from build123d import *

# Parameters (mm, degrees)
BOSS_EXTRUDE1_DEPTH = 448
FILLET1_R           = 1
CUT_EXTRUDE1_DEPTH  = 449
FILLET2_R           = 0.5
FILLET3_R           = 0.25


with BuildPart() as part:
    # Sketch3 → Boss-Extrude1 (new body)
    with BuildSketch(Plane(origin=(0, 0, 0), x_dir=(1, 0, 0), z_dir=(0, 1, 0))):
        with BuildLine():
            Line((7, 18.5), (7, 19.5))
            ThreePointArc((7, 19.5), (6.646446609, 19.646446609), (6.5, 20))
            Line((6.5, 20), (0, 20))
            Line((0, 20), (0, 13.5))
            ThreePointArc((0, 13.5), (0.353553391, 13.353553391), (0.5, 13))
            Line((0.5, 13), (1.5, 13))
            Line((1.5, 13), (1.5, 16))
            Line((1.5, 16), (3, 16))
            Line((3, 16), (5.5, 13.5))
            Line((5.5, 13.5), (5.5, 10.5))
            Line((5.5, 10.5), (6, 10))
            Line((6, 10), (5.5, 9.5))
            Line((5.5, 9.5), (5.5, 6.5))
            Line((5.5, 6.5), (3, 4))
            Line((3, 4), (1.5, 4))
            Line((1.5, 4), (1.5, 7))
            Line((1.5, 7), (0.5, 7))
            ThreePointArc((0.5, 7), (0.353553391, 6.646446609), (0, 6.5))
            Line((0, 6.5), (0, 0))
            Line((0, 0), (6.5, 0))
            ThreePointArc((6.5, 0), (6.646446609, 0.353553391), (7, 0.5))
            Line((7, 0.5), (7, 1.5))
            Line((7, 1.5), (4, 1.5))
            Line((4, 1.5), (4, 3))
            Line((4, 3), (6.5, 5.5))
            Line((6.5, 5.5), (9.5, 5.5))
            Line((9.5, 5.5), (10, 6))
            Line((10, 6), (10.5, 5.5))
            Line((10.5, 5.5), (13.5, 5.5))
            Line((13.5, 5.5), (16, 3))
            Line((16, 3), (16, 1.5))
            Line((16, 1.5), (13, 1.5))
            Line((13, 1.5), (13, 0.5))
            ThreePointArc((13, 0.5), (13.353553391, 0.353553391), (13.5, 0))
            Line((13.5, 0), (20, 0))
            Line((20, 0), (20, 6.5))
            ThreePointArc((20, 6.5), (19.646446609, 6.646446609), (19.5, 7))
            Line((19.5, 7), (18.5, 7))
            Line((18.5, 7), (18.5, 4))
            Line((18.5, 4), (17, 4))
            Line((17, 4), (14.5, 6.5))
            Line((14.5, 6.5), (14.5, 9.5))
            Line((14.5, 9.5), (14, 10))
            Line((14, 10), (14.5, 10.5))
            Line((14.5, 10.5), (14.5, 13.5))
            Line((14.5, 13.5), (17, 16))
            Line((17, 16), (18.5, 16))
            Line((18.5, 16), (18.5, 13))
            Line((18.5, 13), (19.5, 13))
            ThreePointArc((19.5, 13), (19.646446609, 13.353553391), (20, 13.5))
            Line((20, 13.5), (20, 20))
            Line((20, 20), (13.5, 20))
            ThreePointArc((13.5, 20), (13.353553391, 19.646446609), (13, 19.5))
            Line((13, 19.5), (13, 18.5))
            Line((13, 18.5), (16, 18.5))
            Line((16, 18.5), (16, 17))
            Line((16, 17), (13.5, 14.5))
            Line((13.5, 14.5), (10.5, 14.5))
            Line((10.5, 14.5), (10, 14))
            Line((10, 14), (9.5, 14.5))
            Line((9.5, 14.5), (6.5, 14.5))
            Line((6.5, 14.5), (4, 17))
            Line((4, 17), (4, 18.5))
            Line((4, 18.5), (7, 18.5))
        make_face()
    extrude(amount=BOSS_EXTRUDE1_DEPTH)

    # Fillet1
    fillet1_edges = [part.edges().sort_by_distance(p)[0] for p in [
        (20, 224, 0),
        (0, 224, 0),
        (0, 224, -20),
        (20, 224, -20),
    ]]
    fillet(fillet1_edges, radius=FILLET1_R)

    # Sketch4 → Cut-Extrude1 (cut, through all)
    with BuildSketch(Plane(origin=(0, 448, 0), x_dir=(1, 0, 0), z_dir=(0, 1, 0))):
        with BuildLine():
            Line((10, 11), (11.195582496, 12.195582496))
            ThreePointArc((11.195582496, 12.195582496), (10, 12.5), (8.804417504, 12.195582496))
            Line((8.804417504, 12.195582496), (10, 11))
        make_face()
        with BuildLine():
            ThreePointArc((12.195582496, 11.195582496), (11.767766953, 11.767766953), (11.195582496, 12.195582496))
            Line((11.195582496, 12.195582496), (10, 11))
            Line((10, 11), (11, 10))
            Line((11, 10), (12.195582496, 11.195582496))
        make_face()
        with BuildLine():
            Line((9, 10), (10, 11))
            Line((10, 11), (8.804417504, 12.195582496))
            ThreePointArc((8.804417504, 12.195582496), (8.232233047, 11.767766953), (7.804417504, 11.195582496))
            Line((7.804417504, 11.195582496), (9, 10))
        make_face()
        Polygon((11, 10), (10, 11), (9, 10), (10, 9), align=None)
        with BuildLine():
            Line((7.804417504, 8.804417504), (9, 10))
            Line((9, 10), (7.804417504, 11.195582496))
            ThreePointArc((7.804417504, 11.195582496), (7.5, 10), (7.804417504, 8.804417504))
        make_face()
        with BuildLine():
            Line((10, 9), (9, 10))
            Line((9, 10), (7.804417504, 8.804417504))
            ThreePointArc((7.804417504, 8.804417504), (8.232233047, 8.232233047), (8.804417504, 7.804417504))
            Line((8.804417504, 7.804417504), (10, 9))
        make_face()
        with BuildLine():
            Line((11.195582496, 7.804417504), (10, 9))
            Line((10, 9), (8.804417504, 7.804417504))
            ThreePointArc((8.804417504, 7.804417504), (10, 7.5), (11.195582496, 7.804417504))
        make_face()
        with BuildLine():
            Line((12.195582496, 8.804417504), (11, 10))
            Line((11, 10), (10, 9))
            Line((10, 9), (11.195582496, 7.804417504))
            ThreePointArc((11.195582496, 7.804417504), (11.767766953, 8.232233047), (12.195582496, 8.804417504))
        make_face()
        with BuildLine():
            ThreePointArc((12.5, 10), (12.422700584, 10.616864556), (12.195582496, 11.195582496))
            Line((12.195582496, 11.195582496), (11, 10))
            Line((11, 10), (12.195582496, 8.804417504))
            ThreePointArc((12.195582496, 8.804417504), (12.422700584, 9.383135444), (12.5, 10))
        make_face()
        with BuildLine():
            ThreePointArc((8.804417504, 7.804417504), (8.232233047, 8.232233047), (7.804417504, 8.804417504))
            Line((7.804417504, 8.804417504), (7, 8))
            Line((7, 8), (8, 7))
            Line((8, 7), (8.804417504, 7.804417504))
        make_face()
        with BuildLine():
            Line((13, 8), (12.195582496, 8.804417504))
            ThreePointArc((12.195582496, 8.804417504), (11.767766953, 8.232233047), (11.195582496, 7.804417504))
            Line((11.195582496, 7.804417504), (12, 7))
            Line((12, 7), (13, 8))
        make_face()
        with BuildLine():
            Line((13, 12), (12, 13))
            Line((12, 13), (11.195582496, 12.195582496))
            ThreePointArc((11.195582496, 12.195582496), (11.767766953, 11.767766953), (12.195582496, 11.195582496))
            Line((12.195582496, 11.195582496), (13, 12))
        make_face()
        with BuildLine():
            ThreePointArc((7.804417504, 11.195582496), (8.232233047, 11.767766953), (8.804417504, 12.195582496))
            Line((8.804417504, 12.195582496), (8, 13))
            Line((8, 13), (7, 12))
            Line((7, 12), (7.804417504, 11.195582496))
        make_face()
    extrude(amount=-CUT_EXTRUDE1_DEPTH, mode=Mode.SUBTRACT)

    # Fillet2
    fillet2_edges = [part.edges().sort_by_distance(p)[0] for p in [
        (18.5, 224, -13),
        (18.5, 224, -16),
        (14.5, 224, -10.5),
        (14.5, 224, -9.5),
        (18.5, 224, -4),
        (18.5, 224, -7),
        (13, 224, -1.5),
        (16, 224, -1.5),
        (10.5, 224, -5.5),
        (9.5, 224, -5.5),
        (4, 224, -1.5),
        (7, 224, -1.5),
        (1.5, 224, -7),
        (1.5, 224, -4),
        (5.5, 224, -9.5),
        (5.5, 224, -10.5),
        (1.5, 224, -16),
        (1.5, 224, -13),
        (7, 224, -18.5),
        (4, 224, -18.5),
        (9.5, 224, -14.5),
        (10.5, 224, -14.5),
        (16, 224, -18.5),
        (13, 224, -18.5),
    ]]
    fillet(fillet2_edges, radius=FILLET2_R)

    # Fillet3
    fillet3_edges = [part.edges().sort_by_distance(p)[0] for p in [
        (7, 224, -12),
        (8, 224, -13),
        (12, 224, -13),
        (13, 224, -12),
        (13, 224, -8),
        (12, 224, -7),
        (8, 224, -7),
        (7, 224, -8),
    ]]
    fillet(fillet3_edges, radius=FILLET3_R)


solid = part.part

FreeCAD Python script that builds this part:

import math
import FreeCAD as App
import Part
import Sketcher
from FreeCAD import Vector


def edges_at(feature, points):
    """Names of the edges that pass closest to the given points."""
    edges = feature.Shape.Edges
    near = lambda p: min(range(len(edges)), key=lambda i: edges[i].distToShape(Part.Vertex(*p))[0])
    return sorted({f"Edge{near(p) + 1}" for p in points})

doc = App.newDocument("Part")
params = doc.addObject("Spreadsheet::Sheet", "Params")
for row, (alias, value) in enumerate([
    ("sketch1_radius", "0.5 mm"),
    ("sketch1_width", "1 mm"),
    ("sketch1_width2", "3 mm"),
    ("sketch1_width3", "6.5 mm"),
    ("sketch1_width4", "1.5 mm"),
    ("pad1_length", "448 mm"),
    ("fillet_radius", "1 mm"),
    ("sketch2_radius", "2.5 mm"),
    ("fillet2_radius", "0.5 mm"),
    ("fillet3_radius", "0.25 mm"),
], start=1):
    params.set(f"A{row}", alias)
    params.set(f"B{row}", "=" + value)
    params.setAlias(f"B{row}", alias)

body = doc.addObject("PartDesign::Body", "Body")

sketch1 = body.newObject("Sketcher::SketchObject", "Sketch")
sketch1.AttachmentSupport = (doc.getObject("XZ_Plane"), [""])
sketch1.MapMode = "FlatFace"
sketch1.addGeometry([
    Part.LineSegment(Vector(7, -18.5, 0), Vector(7, -19.5, 0)),
    Part.ArcOfCircle(Part.Circle(Vector(7, -20, 0), Vector(0, 0, 1), 0.5), math.radians(90), math.radians(180)),
    Part.LineSegment(Vector(6.5, -20, 0), Vector(0, -20, 0)),
    Part.LineSegment(Vector(0, -20, 0), Vector(0, -13.5, 0)),
    Part.ArcOfCircle(Part.Circle(Vector(0, -13, 0), Vector(0, 0, 1), 0.5), math.radians(-90), math.radians(0)),
    Part.LineSegment(Vector(0.5, -13, 0), Vector(1.5, -13, 0)),
    Part.LineSegment(Vector(1.5, -13, 0), Vector(1.5, -16, 0)),
    Part.LineSegment(Vector(1.5, -16, 0), Vector(3, -16, 0)),
    Part.LineSegment(Vector(3, -16, 0), Vector(5.5, -13.5, 0)),
    Part.LineSegment(Vector(5.5, -13.5, 0), Vector(5.5, -10.5, 0)),
    Part.LineSegment(Vector(5.5, -10.5, 0), Vector(6, -10, 0)),
    Part.LineSegment(Vector(6, -10, 0), Vector(5.5, -9.5, 0)),
    Part.LineSegment(Vector(5.5, -9.5, 0), Vector(5.5, -6.5, 0)),
    Part.LineSegment(Vector(5.5, -6.5, 0), Vector(3, -4, 0)),
    Part.LineSegment(Vector(3, -4, 0), Vector(1.5, -4, 0)),
    Part.LineSegment(Vector(1.5, -4, 0), Vector(1.5, -7, 0)),
    Part.LineSegment(Vector(1.5, -7, 0), Vector(0.5, -7, 0)),
    Part.ArcOfCircle(Part.Circle(Vector(0, -7, 0), Vector(0, 0, 1), 0.5), math.radians(0), math.radians(90)),
    Part.LineSegment(Vector(0, -6.5, 0), Vector(0, 0, 0)),
    Part.LineSegment(Vector(0, 0, 0), Vector(6.5, 0, 0)),
    Part.ArcOfCircle(Part.Circle(Vector(7, 0, 0), Vector(0, 0, 1), 0.5), math.radians(180), math.radians(270)),
    Part.LineSegment(Vector(7, -0.5, 0), Vector(7, -1.5, 0)),
    Part.LineSegment(Vector(7, -1.5, 0), Vector(4, -1.5, 0)),
    Part.LineSegment(Vector(4, -1.5, 0), Vector(4, -3, 0)),
    Part.LineSegment(Vector(4, -3, 0), Vector(6.5, -5.5, 0)),
    Part.LineSegment(Vector(6.5, -5.5, 0), Vector(9.5, -5.5, 0)),
    Part.LineSegment(Vector(9.5, -5.5, 0), Vector(10, -6, 0)),
    Part.LineSegment(Vector(10, -6, 0), Vector(10.5, -5.5, 0)),
    Part.LineSegment(Vector(10.5, -5.5, 0), Vector(13.5, -5.5, 0)),
    Part.LineSegment(Vector(13.5, -5.5, 0), Vector(16, -3, 0)),
    Part.LineSegment(Vector(16, -3, 0), Vector(16, -1.5, 0)),
    Part.LineSegment(Vector(16, -1.5, 0), Vector(13, -1.5, 0)),
    Part.LineSegment(Vector(13, -1.5, 0), Vector(13, -0.5, 0)),
    Part.ArcOfCircle(Part.Circle(Vector(13, 0, 0), Vector(0, 0, 1), 0.5), math.radians(-90), math.radians(0)),
    Part.LineSegment(Vector(13.5, 0, 0), Vector(20, 0, 0)),
    Part.LineSegment(Vector(20, 0, 0), Vector(20, -6.5, 0)),
    Part.ArcOfCircle(Part.Circle(Vector(20, -7, 0), Vector(0, 0, 1), 0.5), math.radians(90), math.radians(180)),
    Part.LineSegment(Vector(19.5, -7, 0), Vector(18.5, -7, 0)),
    Part.LineSegment(Vector(18.5, -7, 0), Vector(18.5, -4, 0)),
    Part.LineSegment(Vector(18.5, -4, 0), Vector(17, -4, 0)),
    Part.LineSegment(Vector(17, -4, 0), Vector(14.5, -6.5, 0)),
    Part.LineSegment(Vector(14.5, -6.5, 0), Vector(14.5, -9.5, 0)),
    Part.LineSegment(Vector(14.5, -9.5, 0), Vector(14, -10, 0)),
    Part.LineSegment(Vector(14, -10, 0), Vector(14.5, -10.5, 0)),
    Part.LineSegment(Vector(14.5, -10.5, 0), Vector(14.5, -13.5, 0)),
    Part.LineSegment(Vector(14.5, -13.5, 0), Vector(17, -16, 0)),
    Part.LineSegment(Vector(17, -16, 0), Vector(18.5, -16, 0)),
    Part.LineSegment(Vector(18.5, -16, 0), Vector(18.5, -13, 0)),
    Part.LineSegment(Vector(18.5, -13, 0), Vector(19.5, -13, 0)),
    Part.ArcOfCircle(Part.Circle(Vector(20, -13, 0), Vector(0, 0, 1), 0.5), math.radians(180), math.radians(270)),
    Part.LineSegment(Vector(20, -13.5, 0), Vector(20, -20, 0)),
    Part.LineSegment(Vector(20, -20, 0), Vector(13.5, -20, 0)),
    Part.ArcOfCircle(Part.Circle(Vector(13, -20, 0), Vector(0, 0, 1), 0.5), math.radians(0), math.radians(90)),
    Part.LineSegment(Vector(13, -19.5, 0), Vector(13, -18.5, 0)),
    Part.LineSegment(Vector(13, -18.5, 0), Vector(16, -18.5, 0)),
    Part.LineSegment(Vector(16, -18.5, 0), Vector(16, -17, 0)),
    Part.LineSegment(Vector(16, -17, 0), Vector(13.5, -14.5, 0)),
    Part.LineSegment(Vector(13.5, -14.5, 0), Vector(10.5, -14.5, 0)),
    Part.LineSegment(Vector(10.5, -14.5, 0), Vector(10, -14, 0)),
    Part.LineSegment(Vector(10, -14, 0), Vector(9.5, -14.5, 0)),
    Part.LineSegment(Vector(9.5, -14.5, 0), Vector(6.5, -14.5, 0)),
    Part.LineSegment(Vector(6.5, -14.5, 0), Vector(4, -17, 0)),
    Part.LineSegment(Vector(4, -17, 0), Vector(4, -18.5, 0)),
    Part.LineSegment(Vector(4, -18.5, 0), Vector(7, -18.5, 0)),
], False)
sketch1.addConstraint([
    Sketcher.Constraint("Coincident", 0, 2, 1, 1),
    Sketcher.Constraint("Coincident", 1, 2, 2, 1),
    Sketcher.Constraint("Coincident", 2, 2, 3, 1),
    Sketcher.Constraint("Coincident", 3, 2, 4, 1),
    Sketcher.Constraint("Coincident", 4, 2, 5, 1),
    Sketcher.Constraint("Coincident", 5, 2, 6, 1),
    Sketcher.Constraint("Coincident", 6, 2, 7, 1),
    Sketcher.Constraint("Coincident", 7, 2, 8, 1),
    Sketcher.Constraint("Coincident", 8, 2, 9, 1),
    Sketcher.Constraint("Coincident", 9, 2, 10, 1),
    Sketcher.Constraint("Coincident", 10, 2, 11, 1),
    Sketcher.Constraint("Coincident", 11, 2, 12, 1),
    Sketcher.Constraint("Coincident", 12, 2, 13, 1),
    Sketcher.Constraint("Coincident", 13, 2, 14, 1),
    Sketcher.Constraint("Coincident", 14, 2, 15, 1),
    Sketcher.Constraint("Coincident", 15, 2, 16, 1),
    Sketcher.Constraint("Coincident", 16, 2, 17, 1),
    Sketcher.Constraint("Coincident", 17, 2, 18, 1),
    Sketcher.Constraint("Coincident", 18, 2, 19, 1),
    Sketcher.Constraint("Coincident", 19, 2, 20, 1),
    Sketcher.Constraint("Coincident", 20, 2, 21, 1),
    Sketcher.Constraint("Coincident", 21, 2, 22, 1),
    Sketcher.Constraint("Coincident", 22, 2, 23, 1),
    Sketcher.Constraint("Coincident", 23, 2, 24, 1),
    Sketcher.Constraint("Coincident", 24, 2, 25, 1),
    Sketcher.Constraint("Coincident", 25, 2, 26, 1),
    Sketcher.Constraint("Coincident", 26, 2, 27, 1),
    Sketcher.Constraint("Coincident", 27, 2, 28, 1),
    Sketcher.Constraint("Coincident", 28, 2, 29, 1),
    Sketcher.Constraint("Coincident", 29, 2, 30, 1),
    Sketcher.Constraint("Coincident", 30, 2, 31, 1),
    Sketcher.Constraint("Coincident", 31, 2, 32, 1),
    Sketcher.Constraint("Coincident", 32, 2, 33, 1),
    Sketcher.Constraint("Coincident", 33, 2, 34, 1),
    Sketcher.Constraint("Coincident", 34, 2, 35, 1),
    Sketcher.Constraint("Coincident", 35, 2, 36, 1),
    Sketcher.Constraint("Coincident", 36, 2, 37, 1),
    Sketcher.Constraint("Coincident", 37, 2, 38, 1),
    Sketcher.Constraint("Coincident", 38, 2, 39, 1),
    Sketcher.Constraint("Coincident", 39, 2, 40, 1),
    Sketcher.Constraint("Coincident", 40, 2, 41, 1),
    Sketcher.Constraint("Coincident", 41, 2, 42, 1),
    Sketcher.Constraint("Coincident", 42, 2, 43, 1),
    Sketcher.Constraint("Coincident", 43, 2, 44, 1),
    Sketcher.Constraint("Coincident", 44, 2, 45, 1),
    Sketcher.Constraint("Coincident", 45, 2, 46, 1),
    Sketcher.Constraint("Coincident", 46, 2, 47, 1),
    Sketcher.Constraint("Coincident", 47, 2, 48, 1),
    Sketcher.Constraint("Coincident", 48, 2, 49, 1),
    Sketcher.Constraint("Coincident", 49, 2, 50, 1),
    Sketcher.Constraint("Coincident", 50, 2, 51, 1),
    Sketcher.Constraint("Coincident", 51, 2, 52, 1),
    Sketcher.Constraint("Coincident", 52, 2, 53, 1),
    Sketcher.Constraint("Coincident", 53, 2, 54, 1),
    Sketcher.Constraint("Coincident", 54, 2, 55, 1),
    Sketcher.Constraint("Coincident", 55, 2, 56, 1),
    Sketcher.Constraint("Coincident", 56, 2, 57, 1),
    Sketcher.Constraint("Coincident", 57, 2, 58, 1),
    Sketcher.Constraint("Coincident", 58, 2, 59, 1),
    Sketcher.Constraint("Coincident", 59, 2, 60, 1),
    Sketcher.Constraint("Coincident", 60, 2, 61, 1),
    Sketcher.Constraint("Coincident", 61, 2, 62, 1),
    Sketcher.Constraint("Coincident", 62, 2, 63, 1),
    Sketcher.Constraint("Coincident", 63, 2, 0, 1),
    Sketcher.Constraint("Vertical", 0),
    Sketcher.Constraint("Horizontal", 2),
    Sketcher.Constraint("Vertical", 3),
    Sketcher.Constraint("Horizontal", 5),
    Sketcher.Constraint("Vertical", 6),
    Sketcher.Constraint("Horizontal", 7),
    Sketcher.Constraint("Vertical", 9),
    Sketcher.Constraint("Vertical", 12),
    Sketcher.Constraint("Horizontal", 14),
    Sketcher.Constraint("Vertical", 15),
    Sketcher.Constraint("Horizontal", 16),
    Sketcher.Constraint("Vertical", 18),
    Sketcher.Constraint("Horizontal", 19),
    Sketcher.Constraint("Vertical", 21),
    Sketcher.Constraint("Horizontal", 22),
    Sketcher.Constraint("Vertical", 23),
    Sketcher.Constraint("Horizontal", 25),
    Sketcher.Constraint("Horizontal", 28),
    Sketcher.Constraint("Vertical", 30),
    Sketcher.Constraint("Horizontal", 31),
    Sketcher.Constraint("Vertical", 32),
    Sketcher.Constraint("Horizontal", 34),
    Sketcher.Constraint("Vertical", 35),
    Sketcher.Constraint("Horizontal", 37),
    Sketcher.Constraint("Vertical", 38),
    Sketcher.Constraint("Horizontal", 39),
    Sketcher.Constraint("Vertical", 41),
    Sketcher.Constraint("Vertical", 44),
    Sketcher.Constraint("Horizontal", 46),
    Sketcher.Constraint("Vertical", 47),
    Sketcher.Constraint("Horizontal", 48),
    Sketcher.Constraint("Vertical", 50),
    Sketcher.Constraint("Horizontal", 51),
    Sketcher.Constraint("Vertical", 53),
    Sketcher.Constraint("Horizontal", 54),
    Sketcher.Constraint("Vertical", 55),
    Sketcher.Constraint("Horizontal", 57),
    Sketcher.Constraint("Horizontal", 60),
    Sketcher.Constraint("Vertical", 62),
    Sketcher.Constraint("Horizontal", 63),
    Sketcher.Constraint("Coincident", 18, 2, -1, 1),
    Sketcher.Constraint("Equal", 1, 4),
    Sketcher.Constraint("Equal", 4, 17),
    Sketcher.Constraint("Equal", 17, 20),
    Sketcher.Constraint("Equal", 20, 33),
    Sketcher.Constraint("Equal", 33, 36),
    Sketcher.Constraint("Equal", 36, 49),
    Sketcher.Constraint("Equal", 49, 52),
    Sketcher.Constraint("PointOnObject", 4, 3, -2),
    Sketcher.Constraint("PointOnObject", 17, 3, -2),
    Sketcher.Constraint("PointOnObject", 20, 3, -1),
    Sketcher.Constraint("PointOnObject", 33, 3, -1),
    Sketcher.Constraint("PointOnObject", 2, 2, -2),
    Sketcher.Constraint("PointOnObject", 33, 2, -1),
    Sketcher.Constraint("Parallel", 8, 10),
    Sketcher.Constraint("Perpendicular", 10, 11),
    Sketcher.Constraint("Parallel", 11, 13),
    Sketcher.Constraint("Parallel", 13, 24),
    Sketcher.Constraint("Parallel", 24, 26),
    Sketcher.Constraint("Perpendicular", 26, 27),
    Sketcher.Constraint("Parallel", 27, 29),
    Sketcher.Constraint("Parallel", 29, 40),
    Sketcher.Constraint("Parallel", 40, 42),
    Sketcher.Constraint("Perpendicular", 42, 43),
    Sketcher.Constraint("Parallel", 43, 45),
    Sketcher.Constraint("Parallel", 45, 56),
    Sketcher.Constraint("Parallel", 56, 58),
    Sketcher.Constraint("Perpendicular", 58, 59),
    Sketcher.Constraint("Parallel", 59, 61),
    Sketcher.Constraint("Horizontal", 17, 3, 36, 3),
    Sketcher.Constraint("Horizontal", 4, 3, 49, 3),
    Sketcher.Constraint("Horizontal", 1, 3, 52, 3),
    Sketcher.Constraint("Horizontal", 52, 3, 1, 2),
    Sketcher.Constraint("Horizontal", 49, 3, 4, 2),
    Sketcher.Constraint("Horizontal", 3, 2, 8, 2),
    Sketcher.Constraint("Horizontal", 36, 3, 15, 2),
    Sketcher.Constraint("Horizontal", 12, 2, 17, 2),
    Sketcher.Constraint("Horizontal", 25, 2, 27, 2),
    Sketcher.Constraint("Horizontal", 23, 2, 29, 2),
    Sketcher.Constraint("Horizontal", 22, 2, 30, 2),
    Sketcher.Constraint("Horizontal", 16, 2, 36, 2),
    Sketcher.Constraint("Horizontal", 14, 2, 38, 2),
    Sketcher.Constraint("Horizontal", 35, 2, 40, 2),
    Sketcher.Constraint("Horizontal", 11, 2, 41, 2),
    Sketcher.Constraint("Horizontal", 10, 2, 42, 2),
    Sketcher.Constraint("Horizontal", 9, 2, 43, 2),
    Sketcher.Constraint("Horizontal", 8, 2, 44, 2),
    Sketcher.Constraint("Horizontal", 7, 2, 45, 2),
    Sketcher.Constraint("Horizontal", 5, 2, 47, 2),
    Sketcher.Constraint("Horizontal", 2, 2, 50, 2),
    Sketcher.Constraint("Horizontal", 57, 2, 59, 2),
    Sketcher.Constraint("Horizontal", 55, 2, 61, 2),
    Sketcher.Constraint("Horizontal", 54, 2, 62, 2),
    Sketcher.Constraint("Vertical", 1, 3, 20, 3),
    Sketcher.Constraint("Vertical", 36, 3, 49, 3),
    Sketcher.Constraint("Vertical", 33, 3, 52, 3),
    Sketcher.Constraint("Vertical", 20, 3, 0, 2),
    Sketcher.Constraint("Vertical", 9, 2, 11, 2),
    Sketcher.Constraint("Vertical", 7, 2, 13, 2),
    Sketcher.Constraint("Vertical", 6, 2, 14, 2),
    Sketcher.Constraint("Vertical", 0, 2, 20, 2),
    Sketcher.Constraint("Vertical", 19, 2, 24, 2),
    Sketcher.Constraint("Vertical", 52, 3, 31, 2),
    Sketcher.Constraint("Vertical", 28, 2, 33, 2),
    Sketcher.Constraint("Vertical", 49, 3, 34, 2),
    Sketcher.Constraint("Vertical", 41, 2, 43, 2),
    Sketcher.Constraint("Vertical", 38, 2, 46, 2),
    Sketcher.Constraint("Vertical", 35, 2, 49, 2),
    Sketcher.Constraint("Vertical", 32, 2, 52, 2),
    Sketcher.Constraint("Vertical", 30, 2, 54, 2),
    Sketcher.Constraint("Vertical", 51, 2, 56, 2),
    Sketcher.Constraint("Vertical", 27, 2, 57, 2),
    Sketcher.Constraint("Vertical", 26, 2, 58, 2),
    Sketcher.Constraint("Vertical", 24, 2, 60, 2),
    Sketcher.Constraint("Equal", 22, 25),
    Sketcher.Constraint("Equal", 25, 28),
    Sketcher.Constraint("Equal", 19, 34),
    Sketcher.Constraint("Equal", 16, 37),
    Sketcher.Constraint("Equal", 14, 39),
    Sketcher.Constraint("Equal", 48, 0),
    Sketcher.Constraint("Equal", 51, 3),
    Sketcher.Constraint("Equal", 63, 6),
    Sketcher.Constraint("Equal", 6, 9),
    Sketcher.Constraint("Equal", 9, 12),
    Sketcher.Constraint("Equal", 3, 18),
    Sketcher.Constraint("Equal", 0, 21),
    Sketcher.Constraint("Equal", 46, 23),
    Sketcher.Constraint("Equal", 30, 55),
    Sketcher.Constraint("Equal", 11, 26),
    Sketcher.Constraint("Radius", 1, 0.5),
    Sketcher.Constraint("DistanceX", 5, 1, 5, 2, 1.0),
    Sketcher.Constraint("DistanceX", 22, 2, 22, 1, 3.0),
    Sketcher.Constraint("DistanceX", 2, 2, 2, 1, 6.5),
    Sketcher.Constraint("DistanceX", 7, 1, 7, 2, 1.5),
    Sketcher.Constraint("DistanceY", 1, 3, -1, 1, 20.0),
])
sketch1.setExpression("Constraints[193]", "Params.sketch1_radius")
sketch1.setExpression("Constraints[194]", "Params.sketch1_width")
sketch1.setExpression("Constraints[195]", "Params.sketch1_width2")
sketch1.setExpression("Constraints[196]", "Params.sketch1_width3")
sketch1.setExpression("Constraints[197]", "Params.sketch1_width4")
pad1 = body.newObject("PartDesign::Pad", "Pad")
pad1.Profile = sketch1
pad1.setExpression("Length", "Params.pad1_length")
pad1.Reversed = True
doc.recompute()

fillet = body.newObject("PartDesign::Fillet", "Fillet")
fillet.Base = (pad1, edges_at(pad1, [
    (20, 224, 0),
    (0, 224, 0),
    (0, 224, -20),
    (20, 224, -20),
]))
fillet.setExpression("Radius", "Params.fillet_radius")

sketch2 = body.newObject("Sketcher::SketchObject", "Sketch001")
sketch2.AttachmentSupport = (doc.getObject("XZ_Plane"), [""])
sketch2.MapMode = "FlatFace"
sketch2.AttachmentOffset = App.Placement(Vector(0, 0, -448), App.Rotation())
sketch2.addGeometry([
    Part.ArcOfCircle(Part.Circle(Vector(10, -10, 0), Vector(0, 0, 1), 2.5), math.radians(-119), math.radians(-61)),
    Part.LineSegment(Vector(8.8, -12.2, 0), Vector(8, -13, 0)),
    Part.LineSegment(Vector(8, -13, 0), Vector(7, -12, 0)),
    Part.LineSegment(Vector(7, -12, 0), Vector(7.8, -11.2, 0)),
    Part.ArcOfCircle(Part.Circle(Vector(10, -10, 0), Vector(0, 0, 1), 2.5), math.radians(151), math.radians(209)),
    Part.LineSegment(Vector(7.8, -8.8, 0), Vector(7, -8, 0)),
    Part.LineSegment(Vector(7, -8, 0), Vector(8, -7, 0)),
    Part.LineSegment(Vector(8, -7, 0), Vector(8.8, -7.8, 0)),
    Part.ArcOfCircle(Part.Circle(Vector(10, -10, 0), Vector(0, 0, 1), 2.5), math.radians(61), math.radians(119)),
    Part.LineSegment(Vector(11.2, -7.8, 0), Vector(12, -7, 0)),
    Part.LineSegment(Vector(12, -7, 0), Vector(13, -8, 0)),
    Part.LineSegment(Vector(13, -8, 0), Vector(12.2, -8.8, 0)),
    Part.ArcOfCircle(Part.Circle(Vector(10, -10, 0), Vector(0, 0, 1), 2.5), math.radians(0), math.radians(29)),
    Part.ArcOfCircle(Part.Circle(Vector(10, -10, 0), Vector(0, 0, 1), 2.5), math.radians(-29), math.radians(0)),
    Part.LineSegment(Vector(12.2, -11.2, 0), Vector(13, -12, 0)),
    Part.LineSegment(Vector(13, -12, 0), Vector(12, -13, 0)),
    Part.LineSegment(Vector(12, -13, 0), Vector(11.2, -12.2, 0)),
], False)
sketch2.addConstraint([
    Sketcher.Constraint("Coincident", 0, 1, 1, 1),
    Sketcher.Constraint("Coincident", 1, 2, 2, 1),
    Sketcher.Constraint("Coincident", 2, 2, 3, 1),
    Sketcher.Constraint("Coincident", 3, 2, 4, 2),
    Sketcher.Constraint("Coincident", 4, 1, 5, 1),
    Sketcher.Constraint("Coincident", 5, 2, 6, 1),
    Sketcher.Constraint("Coincident", 6, 2, 7, 1),
    Sketcher.Constraint("Coincident", 7, 2, 8, 2),
    Sketcher.Constraint("Coincident", 8, 1, 9, 1),
    Sketcher.Constraint("Coincident", 9, 2, 10, 1),
    Sketcher.Constraint("Coincident", 10, 2, 11, 1),
    Sketcher.Constraint("Coincident", 11, 2, 12, 2),
    Sketcher.Constraint("Tangent", 12, 1, 13, 2),
    Sketcher.Constraint("Coincident", 13, 1, 14, 1),
    Sketcher.Constraint("Coincident", 14, 2, 15, 1),
    Sketcher.Constraint("Coincident", 15, 2, 16, 1),
    Sketcher.Constraint("Coincident", 16, 2, 0, 2),
    Sketcher.Constraint("Coincident", 4, 3, 0, 3),
    Sketcher.Constraint("Coincident", 8, 3, 0, 3),
    Sketcher.Constraint("Coincident", 12, 3, 0, 3),
    Sketcher.Constraint("Equal", 0, 4),
    Sketcher.Constraint("Equal", 4, 8),
    Sketcher.Constraint("Equal", 8, 12),
    Sketcher.Constraint("Equal", 12, 13),
    Sketcher.Constraint("Perpendicular", 1, 2),
    Sketcher.Constraint("Perpendicular", 2, 3),
    Sketcher.Constraint("Perpendicular", 3, 5),
    Sketcher.Constraint("Perpendicular", 5, 6),
    Sketcher.Constraint("Perpendicular", 6, 7),
    Sketcher.Constraint("Perpendicular", 7, 9),
    Sketcher.Constraint("Perpendicular", 9, 10),
    Sketcher.Constraint("Perpendicular", 10, 11),
    Sketcher.Constraint("Perpendicular", 11, 14),
    Sketcher.Constraint("Perpendicular", 14, 15),
    Sketcher.Constraint("Perpendicular", 15, 16),
    Sketcher.Constraint("Horizontal", 7, 2, 8, 1),
    Sketcher.Constraint("Horizontal", 6, 2, 9, 2),
    Sketcher.Constraint("Horizontal", 5, 2, 10, 2),
    Sketcher.Constraint("Horizontal", 4, 1, 11, 2),
    Sketcher.Constraint("Horizontal", 13, 3, 12, 1),
    Sketcher.Constraint("Horizontal", 3, 2, 13, 1),
    Sketcher.Constraint("Horizontal", 2, 2, 14, 2),
    Sketcher.Constraint("Horizontal", 1, 2, 15, 2),
    Sketcher.Constraint("Vertical", 3, 2, 4, 1),
    Sketcher.Constraint("Vertical", 2, 2, 5, 2),
    Sketcher.Constraint("Vertical", 1, 2, 6, 2),
    Sketcher.Constraint("Equal", 1, 3),
    Sketcher.Constraint("Radius", 0, 2.5),
    Sketcher.Constraint("DistanceX", -1, 1, 0, 3, 10.0),
    Sketcher.Constraint("DistanceY", 0, 3, -1, 1, 10.0),
    Sketcher.Constraint("DistanceX", -1, 1, 1, 2, 8.0),
    Sketcher.Constraint("DistanceY", 1, 2, -1, 1, 13.0),
])
sketch2.setExpression("Constraints[47]", "Params.sketch2_radius")
pocket1 = body.newObject("PartDesign::Pocket", "Pocket")
pocket1.Profile = sketch2
pocket1.Type = "ThroughAll"
pocket1.Reversed = True
doc.recompute()

fillet2 = body.newObject("PartDesign::Fillet", "Fillet001")
fillet2.Base = (pocket1, edges_at(pocket1, [
    (18.5, 224, -13),
    (18.5, 224, -16),
    (14.5, 224, -10.5),
    (14.5, 224, -9.5),
    (18.5, 224, -4),
    (18.5, 224, -7),
    (13, 224, -1.5),
    (16, 224, -1.5),
    (10.5, 224, -5.5),
    (9.5, 224, -5.5),
    (4, 224, -1.5),
    (7, 224, -1.5),
    (1.5, 224, -7),
    (1.5, 224, -4),
    (5.5, 224, -9.5),
    (5.5, 224, -10.5),
    (1.5, 224, -16),
    (1.5, 224, -13),
    (7, 224, -18.5),
    (4, 224, -18.5),
    (9.5, 224, -14.5),
    (10.5, 224, -14.5),
    (16, 224, -18.5),
    (13, 224, -18.5),
]))
fillet2.setExpression("Radius", "Params.fillet2_radius")
doc.recompute()

fillet3 = body.newObject("PartDesign::Fillet", "Fillet002")
fillet3.Base = (fillet2, edges_at(fillet2, [
    (7, 224, -12),
    (8, 224, -13),
    (12, 224, -13),
    (13, 224, -12),
    (13, 224, -8),
    (12, 224, -7),
    (8, 224, -7),
    (7, 224, -8),
]))
fillet3.setExpression("Radius", "Params.fillet3_radius")

doc.recompute()
